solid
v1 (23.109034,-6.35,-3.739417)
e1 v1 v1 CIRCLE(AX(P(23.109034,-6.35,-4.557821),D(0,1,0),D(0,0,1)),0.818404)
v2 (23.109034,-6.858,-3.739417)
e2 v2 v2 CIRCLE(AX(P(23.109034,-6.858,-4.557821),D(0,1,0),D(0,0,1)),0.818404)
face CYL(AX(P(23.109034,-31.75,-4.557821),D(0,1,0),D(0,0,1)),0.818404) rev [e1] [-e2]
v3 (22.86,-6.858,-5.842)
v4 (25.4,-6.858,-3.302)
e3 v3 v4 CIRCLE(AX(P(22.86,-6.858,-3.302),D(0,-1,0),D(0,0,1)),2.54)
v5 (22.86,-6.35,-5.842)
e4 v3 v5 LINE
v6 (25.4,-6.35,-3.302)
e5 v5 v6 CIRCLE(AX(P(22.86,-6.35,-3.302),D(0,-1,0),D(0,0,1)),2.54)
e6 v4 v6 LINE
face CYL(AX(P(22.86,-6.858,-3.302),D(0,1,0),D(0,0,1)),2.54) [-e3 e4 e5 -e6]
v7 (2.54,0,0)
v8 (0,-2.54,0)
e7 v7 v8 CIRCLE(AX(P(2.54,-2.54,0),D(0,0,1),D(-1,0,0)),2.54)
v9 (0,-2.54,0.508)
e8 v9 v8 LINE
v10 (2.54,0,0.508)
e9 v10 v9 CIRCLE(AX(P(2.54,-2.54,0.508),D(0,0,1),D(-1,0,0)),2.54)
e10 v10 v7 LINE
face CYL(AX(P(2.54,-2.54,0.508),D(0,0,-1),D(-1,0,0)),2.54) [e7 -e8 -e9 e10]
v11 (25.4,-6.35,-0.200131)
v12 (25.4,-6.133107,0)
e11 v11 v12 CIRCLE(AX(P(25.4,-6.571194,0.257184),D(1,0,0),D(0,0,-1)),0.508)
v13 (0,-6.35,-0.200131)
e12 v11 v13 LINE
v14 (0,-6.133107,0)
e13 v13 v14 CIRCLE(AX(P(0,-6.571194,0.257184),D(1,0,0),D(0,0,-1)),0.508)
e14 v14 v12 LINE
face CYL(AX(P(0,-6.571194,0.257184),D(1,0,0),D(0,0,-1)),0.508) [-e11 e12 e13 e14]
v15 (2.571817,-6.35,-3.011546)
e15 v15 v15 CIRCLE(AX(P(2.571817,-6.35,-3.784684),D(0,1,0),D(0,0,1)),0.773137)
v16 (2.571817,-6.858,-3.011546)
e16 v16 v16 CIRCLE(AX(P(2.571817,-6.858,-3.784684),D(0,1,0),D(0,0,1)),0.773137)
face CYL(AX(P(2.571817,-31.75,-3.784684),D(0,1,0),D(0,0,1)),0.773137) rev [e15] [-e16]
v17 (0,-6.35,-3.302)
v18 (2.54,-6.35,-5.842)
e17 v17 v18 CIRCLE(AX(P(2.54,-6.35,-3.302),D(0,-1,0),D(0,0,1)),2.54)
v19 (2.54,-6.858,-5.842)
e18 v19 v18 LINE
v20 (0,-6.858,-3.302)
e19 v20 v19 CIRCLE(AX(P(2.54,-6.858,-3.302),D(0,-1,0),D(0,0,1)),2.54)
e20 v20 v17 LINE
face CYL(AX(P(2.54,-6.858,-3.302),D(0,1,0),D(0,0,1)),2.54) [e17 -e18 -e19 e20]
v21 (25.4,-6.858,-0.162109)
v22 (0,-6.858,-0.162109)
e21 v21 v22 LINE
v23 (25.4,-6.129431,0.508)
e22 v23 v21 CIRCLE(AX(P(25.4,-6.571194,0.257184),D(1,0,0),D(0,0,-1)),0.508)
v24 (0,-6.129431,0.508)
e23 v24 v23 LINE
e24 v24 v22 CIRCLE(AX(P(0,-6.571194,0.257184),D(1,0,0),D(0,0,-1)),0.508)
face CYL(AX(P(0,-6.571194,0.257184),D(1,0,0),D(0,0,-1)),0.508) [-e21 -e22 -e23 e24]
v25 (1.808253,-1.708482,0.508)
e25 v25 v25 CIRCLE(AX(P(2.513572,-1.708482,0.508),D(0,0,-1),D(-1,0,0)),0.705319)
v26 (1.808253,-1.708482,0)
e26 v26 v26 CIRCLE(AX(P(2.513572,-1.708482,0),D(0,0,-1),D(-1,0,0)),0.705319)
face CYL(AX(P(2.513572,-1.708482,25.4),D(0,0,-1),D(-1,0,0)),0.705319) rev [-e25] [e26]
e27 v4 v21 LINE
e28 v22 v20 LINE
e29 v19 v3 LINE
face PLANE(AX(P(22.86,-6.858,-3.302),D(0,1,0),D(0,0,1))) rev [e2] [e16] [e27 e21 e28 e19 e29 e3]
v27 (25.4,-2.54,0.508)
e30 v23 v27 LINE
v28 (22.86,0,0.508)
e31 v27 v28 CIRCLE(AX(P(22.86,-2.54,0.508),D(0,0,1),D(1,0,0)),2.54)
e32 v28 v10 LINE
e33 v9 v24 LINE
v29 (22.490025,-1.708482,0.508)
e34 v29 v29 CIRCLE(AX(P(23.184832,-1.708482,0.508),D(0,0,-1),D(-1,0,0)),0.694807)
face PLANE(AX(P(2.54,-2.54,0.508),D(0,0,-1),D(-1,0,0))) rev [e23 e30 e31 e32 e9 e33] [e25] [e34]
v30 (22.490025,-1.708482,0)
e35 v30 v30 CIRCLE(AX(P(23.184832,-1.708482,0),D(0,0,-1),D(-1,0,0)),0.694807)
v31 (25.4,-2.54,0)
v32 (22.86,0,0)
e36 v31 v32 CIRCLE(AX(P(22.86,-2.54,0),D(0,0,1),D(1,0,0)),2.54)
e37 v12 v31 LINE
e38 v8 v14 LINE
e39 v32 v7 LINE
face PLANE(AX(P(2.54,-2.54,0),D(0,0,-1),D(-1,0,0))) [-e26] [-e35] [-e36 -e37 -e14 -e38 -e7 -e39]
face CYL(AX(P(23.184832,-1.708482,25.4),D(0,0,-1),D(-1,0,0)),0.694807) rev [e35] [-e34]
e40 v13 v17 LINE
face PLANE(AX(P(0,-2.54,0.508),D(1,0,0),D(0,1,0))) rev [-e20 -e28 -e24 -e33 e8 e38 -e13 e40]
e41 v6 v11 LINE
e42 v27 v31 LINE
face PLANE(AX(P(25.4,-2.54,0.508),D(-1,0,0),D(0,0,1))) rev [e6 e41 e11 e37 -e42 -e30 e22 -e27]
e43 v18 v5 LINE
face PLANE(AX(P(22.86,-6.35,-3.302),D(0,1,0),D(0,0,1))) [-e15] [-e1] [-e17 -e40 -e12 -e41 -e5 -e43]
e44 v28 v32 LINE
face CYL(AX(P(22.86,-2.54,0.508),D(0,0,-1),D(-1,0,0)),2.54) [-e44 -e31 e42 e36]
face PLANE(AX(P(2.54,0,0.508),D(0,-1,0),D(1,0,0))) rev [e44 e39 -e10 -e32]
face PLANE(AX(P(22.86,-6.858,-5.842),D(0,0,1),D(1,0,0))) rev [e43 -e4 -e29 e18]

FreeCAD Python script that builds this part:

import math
import FreeCAD as App
import Part
import Sketcher

V = App.Vector
Q = App.Units.Quantity

doc = App.newDocument("Part")
params = doc.addObject("Spreadsheet::Sheet", "Params")
for row, (alias, value) in enumerate([
    ("sketch1_radius", "0.1 in"),
    ("sketch1_width", "1 in"),
    ("sketch1_height", "0.15 in"),
    ("pad1_length", "0.02 in"),
    ("sketch2_radius", "0.1 in"),
    ("sketch2_width", "1 in"),
    ("sketch2_height", "0.15 in"),
    ("pad2_length", "0.02 in"),
    ("sketch3_diameter", "0.04 in"),
    ("pad3_length", "1 in"),
    ("pocket1_length", "1 in"),
    ("pocket2_length", "1 in"),
], start=1):
    params.set(f"A{row}", alias)
    params.set(f"B{row}", "=" + value)
    params.setAlias(f"B{row}", alias)

body = doc.addObject("PartDesign::Body", "Body")

# Sketch on XY plane
sketch1 = body.newObject("Sketcher::SketchObject", "Sketch")
sketch1.AttachmentSupport = (doc.getObject("XY_Plane"), [""])
sketch1.MapMode = "FlatFace"
sketch1.addGeometry(Part.LineSegment(V(22.9, 0, 0), V(2.5, 0, 0)), False)
sketch1.addGeometry(Part.ArcOfCircle(Part.Circle(V(2.5, -2.5, 0), V(0, 0, 1), 2.5), math.radians(90), math.radians(180)), False)
sketch1.addGeometry(Part.LineSegment(V(0, -2.5, 0), V(0, -6.3, 0)), False)
sketch1.addGeometry(Part.LineSegment(V(0, -6.3, 0), V(25.4, -6.3, 0)), False)
sketch1.addGeometry(Part.LineSegment(V(25.4, -6.3, 0), V(25.4, -2.5, 0)), False)
sketch1.addGeometry(Part.ArcOfCircle(Part.Circle(V(22.9, -2.5, 0), V(0, 0, 1), 2.5), math.radians(0), math.radians(90)), False)
sketch1.addConstraint(Sketcher.Constraint("Tangent", 0, 2, 1, 1))
sketch1.addConstraint(Sketcher.Constraint("Tangent", 1, 2, 2, 1))
sketch1.addConstraint(Sketcher.Constraint("Coincident", 2, 2, 3, 1))
sketch1.addConstraint(Sketcher.Constraint("Coincident", 3, 2, 4, 1))
sketch1.addConstraint(Sketcher.Constraint("Tangent", 4, 2, 5, 1))
sketch1.addConstraint(Sketcher.Constraint("Tangent", 5, 2, 0, 1))
sketch1.addConstraint(Sketcher.Constraint("Horizontal", 0))
sketch1.addConstraint(Sketcher.Constraint("Vertical", 2))
sketch1.addConstraint(Sketcher.Constraint("Horizontal", 3))
sketch1.addConstraint(Sketcher.Constraint("Vertical", 4))
sketch1.addConstraint(Sketcher.Constraint("Equal", 1, 5))
sketch1.addConstraint(Sketcher.Constraint("PointOnObject", 0, 2, -1))
sketch1.addConstraint(Sketcher.Constraint("PointOnObject", 1, 2, -2))
sketch1.addConstraint(Sketcher.Constraint("Radius", 1, Q("0.1 in")))
sketch1.addConstraint(Sketcher.Constraint("DistanceX", 3, 1, 3, 2, Q("1 in")))
sketch1.addConstraint(Sketcher.Constraint("DistanceY", 2, 2, 2, 1, Q("0.15 in")))
sketch1.setExpression("Constraints[13]", "Params.sketch1_radius")
sketch1.setExpression("Constraints[14]", "Params.sketch1_width")
sketch1.setExpression("Constraints[15]", "Params.sketch1_height")
pad1 = body.newObject("PartDesign::Pad", "Pad")
pad1.Profile = sketch1
pad1.setExpression("Length", "Params.pad1_length")

# Sketch on XZ plane
sketch2 = body.newObject("Sketcher::SketchObject", "Sketch001")
sketch2.AttachmentSupport = (doc.getObject("XZ_Plane"), [""])
sketch2.MapMode = "FlatFace"
sketch2.AttachmentOffset = App.Placement(V(0, 0, 0.25 * 25.4), App.Rotation())
sketch2.addGeometry(Part.LineSegment(V(25.4, 0.5, 0), V(0, 0.5, 0)), False)
sketch2.addGeometry(Part.LineSegment(V(0, 0.5, 0), V(0, -3.3, 0)), False)
sketch2.addGeometry(Part.ArcOfCircle(Part.Circle(V(2.5, -3.3, 0), V(0, 0, 1), 2.5), math.radians(-180), math.radians(-90)), False)
sketch2.addGeometry(Part.LineSegment(V(2.5, -5.8, 0), V(22.9, -5.8, 0)), False)
sketch2.addGeometry(Part.ArcOfCircle(Part.Circle(V(22.9, -3.3, 0), V(0, 0, 1), 2.5), math.radians(-90), math.radians(0)), False)
sketch2.addGeometry(Part.LineSegment(V(25.4, -3.3, 0), V(25.4, 0.5, 0)), False)
sketch2.addConstraint(Sketcher.Constraint("Coincident", 0, 2, 1, 1))
sketch2.addConstraint(Sketcher.Constraint("Tangent", 1, 2, 2, 1))
sketch2.addConstraint(Sketcher.Constraint("Tangent", 2, 2, 3, 1))
sketch2.addConstraint(Sketcher.Constraint("Tangent", 3, 2, 4, 1))
sketch2.addConstraint(Sketcher.Constraint("Tangent", 4, 2, 5, 1))
sketch2.addConstraint(Sketcher.Constraint("Coincident", 5, 2, 0, 1))
sketch2.addConstraint(Sketcher.Constraint("Horizontal", 0))
sketch2.addConstraint(Sketcher.Constraint("Vertical", 1))
sketch2.addConstraint(Sketcher.Constraint("Horizontal", 3))
sketch2.addConstraint(Sketcher.Constraint("Vertical", 5))
sketch2.addConstraint(Sketcher.Constraint("Equal", 2, 4))
sketch2.addConstraint(Sketcher.Constraint("PointOnObject", 0, 2, -2))
sketch2.addConstraint(Sketcher.Constraint("Radius", 2, Q("0.1 in")))
sketch2.addConstraint(Sketcher.Constraint("DistanceX", 0, 2, 0, 1, Q("1 in")))
sketch2.addConstraint(Sketcher.Constraint("DistanceY", 1, 2, 1, 1, Q("0.15 in")))
sketch2.addConstraint(Sketcher.Constraint("DistanceY", 2, 3, -1, 1, Q("0.13 in")))
sketch2.setExpression("Constraints[12]", "Params.sketch2_radius")
sketch2.setExpression("Constraints[13]", "Params.sketch2_width")
sketch2.setExpression("Constraints[14]", "Params.sketch2_height")
pad2 = body.newObject("PartDesign::Pad", "Pad001")
pad2.Profile = sketch2
pad2.setExpression("Length", "Params.pad2_length")

# Sketch on YZ plane
sketch3 = body.newObject("Sketcher::SketchObject", "Sketch002")
sketch3.AttachmentSupport = (doc.getObject("YZ_Plane"), [""])
sketch3.MapMode = "FlatFace"
sketch3.AttachmentOffset = App.Placement(V(0, 0, 1 * 25.4), App.Rotation())
sketch3.addGeometry(Part.Circle(V(-6.6, 0.3, 0), V(0, 0, 1), 0.5), False)
sketch3.addConstraint(Sketcher.Constraint("Diameter", 0, Q("0.04 in")))
sketch3.addConstraint(Sketcher.Constraint("DistanceX", 0, 3, -1, 1, 6.571194))
sketch3.addConstraint(Sketcher.Constraint("DistanceY", -1, 1, 0, 3, 0.257184))
sketch3.setExpression("Constraints[0]", "Params.sketch3_diameter")
pad3 = body.newObject("PartDesign::Pad", "Pad002")
pad3.Profile = sketch3
pad3.setExpression("Length", "Params.pad3_length")
pad3.Reversed = True

# Sketch on XY plane
sketch4 = body.newObject("Sketcher::SketchObject", "Sketch003")
sketch4.AttachmentSupport = (doc.getObject("XY_Plane"), [""])
sketch4.MapMode = "FlatFace"
sketch4.addGeometry(Part.Circle(V(23.2, -1.7, 0), V(0, 0, 1), 0.7), False)
sketch4.addGeometry(Part.Circle(V(2.5, -1.7, 0), V(0, 0, 1), 0.7), False)
sketch4.addConstraint(Sketcher.Constraint("Horizontal", 0, 3, 1, 3))
sketch4.addConstraint(Sketcher.Constraint("Diameter", 0, 1.389613))
sketch4.addConstraint(Sketcher.Constraint("Diameter", 1, 1.410637))
sketch4.addConstraint(Sketcher.Constraint("DistanceY", 0, 3, -1, 1, 1.708482))
sketch4.addConstraint(Sketcher.Constraint("DistanceX", -1, 1, 1, 3, 2.513572))
sketch4.addConstraint(Sketcher.Constraint("DistanceX", 1, 3, 0, 3, 20.67126))
pocket1 = body.newObject("PartDesign::Pocket", "Pocket")
pocket1.Profile = sketch4
pocket1.setExpression("Length", "Params.pocket1_length")
pocket1.Reversed = True

# Sketch on XZ plane
sketch5 = body.newObject("Sketcher::SketchObject", "Sketch004")
sketch5.AttachmentSupport = (doc.getObject("XZ_Plane"), [""])
sketch5.MapMode = "FlatFace"
sketch5.AttachmentOffset = App.Placement(V(0, 0, 0.25 * 25.4), App.Rotation())
sketch5.addGeometry(Part.Circle(V(2.6, -3.8, 0), V(0, 0, 1), 0.8), False)
sketch5.addGeometry(Part.Circle(V(23.1, -4.6, 0), V(0, 0, 1), 0.8), False)
sketch5.addConstraint(Sketcher.Constraint("Diameter", 0, 1.546275))
sketch5.addConstraint(Sketcher.Constraint("Diameter", 1, 1.636808))
sketch5.addConstraint(Sketcher.Constraint("DistanceY", 1, 3, -1, 1, 4.557821))
sketch5.addConstraint(Sketcher.Constraint("DistanceX", -1, 1, 0, 3, 2.571817))
sketch5.addConstraint(Sketcher.Constraint("DistanceY", 0, 3, -1, 1, 3.784684))
sketch5.addConstraint(Sketcher.Constraint("DistanceX", -1, 1, 1, 3, 23.109034))
pocket2 = body.newObject("PartDesign::Pocket", "Pocket001")
pocket2.Profile = sketch5
pocket2.setExpression("Length", "Params.pocket2_length")
pocket2.Reversed = True

doc.recompute()
